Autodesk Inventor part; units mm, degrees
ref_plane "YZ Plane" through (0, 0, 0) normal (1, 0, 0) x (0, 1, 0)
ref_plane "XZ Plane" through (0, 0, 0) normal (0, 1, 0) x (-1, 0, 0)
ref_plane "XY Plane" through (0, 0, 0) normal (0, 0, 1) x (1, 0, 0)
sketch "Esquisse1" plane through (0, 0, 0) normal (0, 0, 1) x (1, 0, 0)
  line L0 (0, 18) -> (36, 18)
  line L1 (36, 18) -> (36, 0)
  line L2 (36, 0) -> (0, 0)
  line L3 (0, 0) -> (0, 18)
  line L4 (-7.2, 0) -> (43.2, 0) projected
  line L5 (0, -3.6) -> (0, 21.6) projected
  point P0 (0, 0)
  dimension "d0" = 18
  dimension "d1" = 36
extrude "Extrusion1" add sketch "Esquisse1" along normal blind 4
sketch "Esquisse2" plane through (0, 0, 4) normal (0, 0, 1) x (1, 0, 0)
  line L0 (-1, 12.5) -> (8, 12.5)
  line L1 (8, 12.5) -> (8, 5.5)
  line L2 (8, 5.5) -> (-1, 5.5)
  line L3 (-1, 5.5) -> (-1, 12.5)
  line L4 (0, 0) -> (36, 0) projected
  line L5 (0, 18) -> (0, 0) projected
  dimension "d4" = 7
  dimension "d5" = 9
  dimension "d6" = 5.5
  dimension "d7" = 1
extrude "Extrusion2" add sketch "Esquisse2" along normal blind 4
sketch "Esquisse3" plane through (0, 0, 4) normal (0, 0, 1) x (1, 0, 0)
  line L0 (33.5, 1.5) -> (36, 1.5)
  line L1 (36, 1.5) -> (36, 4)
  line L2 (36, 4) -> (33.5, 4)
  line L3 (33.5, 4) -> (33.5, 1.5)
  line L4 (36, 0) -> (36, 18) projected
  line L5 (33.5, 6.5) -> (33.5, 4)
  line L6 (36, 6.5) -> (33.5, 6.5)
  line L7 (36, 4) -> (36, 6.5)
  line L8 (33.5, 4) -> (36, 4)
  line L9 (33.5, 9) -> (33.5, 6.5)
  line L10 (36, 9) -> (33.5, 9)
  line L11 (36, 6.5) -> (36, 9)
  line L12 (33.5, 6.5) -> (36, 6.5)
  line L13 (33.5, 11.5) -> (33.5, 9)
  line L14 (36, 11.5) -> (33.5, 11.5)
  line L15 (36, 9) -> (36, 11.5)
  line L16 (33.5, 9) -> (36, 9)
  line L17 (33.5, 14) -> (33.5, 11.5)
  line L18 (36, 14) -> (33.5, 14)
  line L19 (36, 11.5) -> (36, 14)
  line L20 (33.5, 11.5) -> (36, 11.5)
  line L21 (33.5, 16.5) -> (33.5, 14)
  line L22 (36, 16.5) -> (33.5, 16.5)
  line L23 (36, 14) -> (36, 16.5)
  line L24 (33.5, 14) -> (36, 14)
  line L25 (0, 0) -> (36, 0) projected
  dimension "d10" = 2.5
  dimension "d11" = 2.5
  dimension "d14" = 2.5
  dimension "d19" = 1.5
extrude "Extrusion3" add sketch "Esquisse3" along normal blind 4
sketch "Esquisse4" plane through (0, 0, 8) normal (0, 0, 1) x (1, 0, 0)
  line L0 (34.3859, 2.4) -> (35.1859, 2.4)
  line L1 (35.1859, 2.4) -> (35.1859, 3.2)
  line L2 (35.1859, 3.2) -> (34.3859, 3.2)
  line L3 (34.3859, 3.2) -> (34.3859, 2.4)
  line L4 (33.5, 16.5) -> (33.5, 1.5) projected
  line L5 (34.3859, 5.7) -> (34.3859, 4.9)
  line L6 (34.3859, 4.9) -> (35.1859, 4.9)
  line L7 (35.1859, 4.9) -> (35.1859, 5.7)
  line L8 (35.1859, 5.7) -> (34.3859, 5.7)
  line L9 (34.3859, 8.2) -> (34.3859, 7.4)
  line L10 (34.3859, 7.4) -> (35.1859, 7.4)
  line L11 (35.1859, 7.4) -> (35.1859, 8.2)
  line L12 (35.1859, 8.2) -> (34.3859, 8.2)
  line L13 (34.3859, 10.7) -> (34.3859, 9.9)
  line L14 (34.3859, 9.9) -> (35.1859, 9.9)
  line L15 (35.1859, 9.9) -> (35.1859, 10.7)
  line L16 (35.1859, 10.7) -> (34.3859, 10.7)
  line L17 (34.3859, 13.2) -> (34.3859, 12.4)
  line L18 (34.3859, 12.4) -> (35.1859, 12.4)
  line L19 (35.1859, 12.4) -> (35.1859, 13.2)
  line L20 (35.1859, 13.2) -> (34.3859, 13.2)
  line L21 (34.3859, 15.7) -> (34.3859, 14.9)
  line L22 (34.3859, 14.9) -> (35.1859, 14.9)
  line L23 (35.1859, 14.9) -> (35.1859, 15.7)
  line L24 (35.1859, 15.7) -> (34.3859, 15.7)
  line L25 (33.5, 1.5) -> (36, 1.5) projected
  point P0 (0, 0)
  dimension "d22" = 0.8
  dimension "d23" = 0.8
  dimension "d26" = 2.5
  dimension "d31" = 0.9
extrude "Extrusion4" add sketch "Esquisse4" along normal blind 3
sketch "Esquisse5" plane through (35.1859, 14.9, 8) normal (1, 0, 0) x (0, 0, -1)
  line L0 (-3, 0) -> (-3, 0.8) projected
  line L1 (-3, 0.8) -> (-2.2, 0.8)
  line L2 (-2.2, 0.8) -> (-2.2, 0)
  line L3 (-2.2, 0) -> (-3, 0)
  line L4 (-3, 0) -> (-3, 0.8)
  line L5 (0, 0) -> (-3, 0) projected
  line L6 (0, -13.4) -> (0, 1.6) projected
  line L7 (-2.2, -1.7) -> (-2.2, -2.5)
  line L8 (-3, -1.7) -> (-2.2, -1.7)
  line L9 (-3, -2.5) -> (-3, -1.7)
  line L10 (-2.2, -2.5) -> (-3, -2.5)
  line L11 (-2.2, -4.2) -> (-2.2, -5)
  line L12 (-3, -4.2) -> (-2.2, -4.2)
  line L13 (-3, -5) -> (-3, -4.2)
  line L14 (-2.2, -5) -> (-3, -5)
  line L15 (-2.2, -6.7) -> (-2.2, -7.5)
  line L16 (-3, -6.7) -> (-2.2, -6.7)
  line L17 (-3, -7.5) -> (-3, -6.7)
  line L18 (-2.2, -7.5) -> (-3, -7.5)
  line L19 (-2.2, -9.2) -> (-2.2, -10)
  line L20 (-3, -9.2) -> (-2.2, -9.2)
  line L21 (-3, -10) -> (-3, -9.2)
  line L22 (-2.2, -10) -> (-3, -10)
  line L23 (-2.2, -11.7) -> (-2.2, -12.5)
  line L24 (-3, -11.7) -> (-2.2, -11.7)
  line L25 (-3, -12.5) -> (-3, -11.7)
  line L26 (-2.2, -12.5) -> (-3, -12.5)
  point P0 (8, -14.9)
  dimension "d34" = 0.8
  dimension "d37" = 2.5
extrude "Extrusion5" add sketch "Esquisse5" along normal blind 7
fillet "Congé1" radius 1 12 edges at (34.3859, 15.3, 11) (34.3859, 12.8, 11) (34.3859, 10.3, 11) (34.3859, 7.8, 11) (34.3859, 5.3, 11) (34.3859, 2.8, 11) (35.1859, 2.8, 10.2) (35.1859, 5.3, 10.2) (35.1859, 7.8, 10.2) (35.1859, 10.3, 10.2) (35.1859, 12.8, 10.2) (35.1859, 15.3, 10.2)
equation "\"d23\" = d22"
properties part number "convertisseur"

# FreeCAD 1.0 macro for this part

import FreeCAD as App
import Part
import Sketcher

V = App.Vector
Q = App.Units.Quantity


def edges_at(feature, points):
    """Names of the edges that pass closest to the given points."""
    edges = feature.Shape.Edges
    near = lambda p: min(range(len(edges)), key=lambda i: edges[i].distToShape(Part.Vertex(*p))[0])
    return sorted({f"Edge{near(p) + 1}" for p in points})


def add_polygon(sketch, points):
    """Adds a closed chain of lines whose ends are joined by coincident constraints."""
    first, n = sketch.GeometryCount, len(points)
    for a, b in zip(points, points[1:] + points[:1]):
        sketch.addGeometry(Part.LineSegment(App.Vector(*a, 0), App.Vector(*b, 0)), False)
    for i in range(n):
        sketch.addConstraint(Sketcher.Constraint("Coincident", first + i, 2, first + (i + 1) % n, 1))

doc = App.newDocument("Part")
params = doc.addObject("Spreadsheet::Sheet", "Params")
for row, (alias, value) in enumerate([
    ("sketch1_width", "36 mm"),
    ("sketch1_height", "18 mm"),
    ("pad1_length", "4 mm"),
    ("sketch2_width", "9 mm"),
    ("sketch2_height", "7 mm"),
    ("pad2_length", "4 mm"),
    ("sketch3_width", "2.5 mm"),
    ("sketch3_height", "15 mm"),
    ("pad3_length", "4 mm"),
    ("sketch4_width", "0.8 mm"),
    ("pad4_length", "3 mm"),
    ("sketch5_width", "0.8 mm"),
    ("pad5_length", "7 mm"),
    ("fillet_radius", "1 mm"),
], start=1):
    params.set(f"A{row}", alias)
    params.set(f"B{row}", "=" + value)
    params.setAlias(f"B{row}", alias)

body = doc.addObject("PartDesign::Body", "Body")

# Sketch on XY plane
sketch1 = doc.addObject("Sketcher::SketchObject", "Sketch")
body.addObject(sketch1)
sketch1.AttachmentSupport = (doc.XY_Plane, [""])
sketch1.MapMode = "FlatFace"
add_polygon(sketch1, [(36, 18), (0, 18), (0, 0), (36, 0)])  # lines 0-3
sketch1.addConstraint([
    Sketcher.Constraint("Horizontal", 0),
    Sketcher.Constraint("Vertical", 1),
    Sketcher.Constraint("Horizontal", 2),
    Sketcher.Constraint("Vertical", 3),
    Sketcher.Constraint("Coincident", 1, 2, -1, 1),
    Sketcher.Constraint("DistanceX", 0, 2, 0, 1, Q("36 mm")),
    Sketcher.Constraint("DistanceY", 1, 2, 1, 1, Q("18 mm")),
])
sketch1.setExpression("Constraints[9]", "Params.sketch1_width")
sketch1.setExpression("Constraints[10]", "Params.sketch1_height")
pad1 = doc.addObject("PartDesign::Pad", "Pad")
body.addObject(pad1)
pad1.Profile = sketch1
pad1.setExpression("Length", "Params.pad1_length")

# Sketch on XY plane
sketch2 = doc.addObject("Sketcher::SketchObject", "Sketch001")
body.addObject(sketch2)
sketch2.AttachmentSupport = (doc.XY_Plane, [""])
sketch2.MapMode = "FlatFace"
sketch2.AttachmentOffset = App.Placement(V(0, 0, 4), App.Rotation())
add_polygon(sketch2, [(-1, 12.5), (-1, 5.5), (8, 5.5), (8, 12.5)])  # lines 0-3
sketch2.addConstraint([
    Sketcher.Constraint("Vertical", 0),
    Sketcher.Constraint("Horizontal", 1),
    Sketcher.Constraint("Vertical", 2),
    Sketcher.Constraint("Horizontal", 3),
    Sketcher.Constraint("DistanceX", 1, 1, 1, 2, Q("9 mm")),
    Sketcher.Constraint("DistanceY", 0, 2, 0, 1, Q("7 mm")),
    Sketcher.Constraint("DistanceX", 0, 2, -1, 1, Q("1 mm")),
    Sketcher.Constraint("DistanceY", -1, 1, 0, 2, Q("5.5 mm")),
])
sketch2.setExpression("Constraints[8]", "Params.sketch2_width")
sketch2.setExpression("Constraints[9]", "Params.sketch2_height")
pad2 = doc.addObject("PartDesign::Pad", "Pad001")
body.addObject(pad2)
pad2.Profile = sketch2
pad2.setExpression("Length", "Params.pad2_length")

# Sketch on XY plane
sketch3 = doc.addObject("Sketcher::SketchObject", "Sketch002")
body.addObject(sketch3)
sketch3.AttachmentSupport = (doc.XY_Plane, [""])
sketch3.MapMode = "FlatFace"
sketch3.AttachmentOffset = App.Placement(V(0, 0, 4), App.Rotation())
add_polygon(sketch3, [(33.5, 1.5), (36, 1.5), (36, 16.5), (33.5, 16.5)])  # lines 0-3
sketch3.addConstraint([
    Sketcher.Constraint("Horizontal", 0),
    Sketcher.Constraint("Vertical", 1),
    Sketcher.Constraint("Horizontal", 2),
    Sketcher.Constraint("Vertical", 3),
    Sketcher.Constraint("DistanceX", 0, 1, 0, 2, Q("2.5 mm")),
    Sketcher.Constraint("DistanceY", -1, 1, 0, 2, Q("1.5 mm")),
    Sketcher.Constraint("DistanceY", 1, 1, 1, 2, Q("15 mm")),
    Sketcher.Constraint("DistanceX", -1, 1, 0, 2, Q("36 mm")),
])
sketch3.setExpression("Constraints[8]", "Params.sketch3_width")
sketch3.setExpression("Constraints[10]", "Params.sketch3_height")
pad3 = doc.addObject("PartDesign::Pad", "Pad002")
body.addObject(pad3)
pad3.Profile = sketch3
pad3.setExpression("Length", "Params.pad3_length")

# Sketch on XY plane
sketch4 = doc.addObject("Sketcher::SketchObject", "Sketch003")
body.addObject(sketch4)
sketch4.AttachmentSupport = (doc.XY_Plane, [""])
sketch4.MapMode = "FlatFace"
sketch4.AttachmentOffset = App.Placement(V(0, 0, 8), App.Rotation())
add_polygon(sketch4, [(34.3859, 3.2), (34.3859, 2.4), (35.1859, 2.4), (35.1859, 3.2)])  # lines 0-3
add_polygon(sketch4, [(35.1859, 5.7), (34.3859, 5.7), (34.3859, 4.9), (35.1859, 4.9)])  # lines 4-7
add_polygon(sketch4, [(35.1859, 8.2), (34.3859, 8.2), (34.3859, 7.4), (35.1859, 7.4)])  # lines 8-11
add_polygon(sketch4, [(35.1859, 10.7), (34.3859, 10.7), (34.3859, 9.9), (35.1859, 9.9)])  # lines 12-15
add_polygon(sketch4, [(35.1859, 13.2), (34.3859, 13.2), (34.3859, 12.4), (35.1859, 12.4)])  # lines 16-19
add_polygon(sketch4, [(35.1859, 15.7), (34.3859, 15.7), (34.3859, 14.9), (35.1859, 14.9)])  # lines 20-23
sketch4.addConstraint([
    Sketcher.Constraint("Vertical", 0),
    Sketcher.Constraint("Horizontal", 1),
    Sketcher.Constraint("Vertical", 2),
    Sketcher.Constraint("Horizontal", 3),
    Sketcher.Constraint("Horizontal", 4),
    Sketcher.Constraint("Vertical", 5),
    Sketcher.Constraint("Horizontal", 6),
    Sketcher.Constraint("Vertical", 7),
    Sketcher.Constraint("Horizontal", 8),
    Sketcher.Constraint("Vertical", 9),
    Sketcher.Constraint("Horizontal", 10),
    Sketcher.Constraint("Vertical", 11),
    Sketcher.Constraint("Horizontal", 12),
    Sketcher.Constraint("Vertical", 13),
    Sketcher.Constraint("Horizontal", 14),
    Sketcher.Constraint("Vertical", 15),
    Sketcher.Constraint("Horizontal", 16),
    Sketcher.Constraint("Vertical", 17),
    Sketcher.Constraint("Horizontal", 18),
    Sketcher.Constraint("Vertical", 19),
    Sketcher.Constraint("Horizontal", 20),
    Sketcher.Constraint("Vertical", 21),
    Sketcher.Constraint("Horizontal", 22),
    Sketcher.Constraint("Vertical", 23),
    Sketcher.Constraint("Vertical", 3, 2, 4, 2),
    Sketcher.Constraint("Vertical", 2, 2, 6, 2),
    Sketcher.Constraint("Vertical", 5, 2, 8, 2),
    Sketcher.Constraint("Vertical", 7, 2, 10, 2),
    Sketcher.Constraint("Vertical", 9, 2, 12, 2),
    Sketcher.Constraint("Vertical", 11, 2, 14, 2),
    Sketcher.Constraint("Vertical", 13, 2, 16, 2),
    Sketcher.Constraint("Vertical", 15, 2, 18, 2),
    Sketcher.Constraint("Vertical", 17, 2, 20, 2),
    Sketcher.Constraint("Vertical", 19, 2, 22, 2),
    Sketcher.Constraint("Equal", 22, 0),
    Sketcher.Constraint("Equal", 2, 5),
    Sketcher.Constraint("Equal", 7, 9),
    Sketcher.Constraint("Equal", 11, 13),
    Sketcher.Constraint("Equal", 15, 17),
    Sketcher.Constraint("Equal", 19, 21),
    Sketcher.Constraint("DistanceX", 1, 1, 1, 2, Q("0.8 mm")),
    Sketcher.Constraint("DistanceY", 3, 2, 4, 2, Q("2.5 mm")),
    Sketcher.Constraint("DistanceY", 4, 2, 8, 2, Q("2.5 mm")),
    Sketcher.Constraint("DistanceY", 8, 2, 12, 2, Q("2.5 mm")),
    Sketcher.Constraint("DistanceY", 12, 2, 16, 2, Q("2.5 mm")),
    Sketcher.Constraint("DistanceY", 16, 2, 20, 2, Q("2.5 mm")),
    Sketcher.Constraint("DistanceY", -1, 1, 0, 2, Q("2.4 mm")),
    Sketcher.Constraint("DistanceX", -1, 1, 0, 2, Q("34.386 mm")),
])
sketch4.setExpression("Constraints[64]", "Params.sketch4_width")
pad4 = doc.addObject("PartDesign::Pad", "Pad003")
body.addObject(pad4)
pad4.Profile = sketch4
pad4.setExpression("Length", "Params.pad4_length")

# Sketch on YZ plane
sketch5 = doc.addObject("Sketcher::SketchObject", "Sketch004")
body.addObject(sketch5)
sketch5.AttachmentSupport = (doc.YZ_Plane, [""])
sketch5.MapMode = "FlatFace"
sketch5.AttachmentOffset = App.Placement(V(0, 0, 35.1859), App.Rotation())
add_polygon(sketch5, [(15.7, 11), (14.9, 11), (14.9, 10.2), (15.7, 10.2)])  # lines 0-3
add_polygon(sketch5, [(12.4, 10.2), (13.2, 10.2), (13.2, 11), (12.4, 11)])  # lines 4-7
add_polygon(sketch5, [(9.9, 10.2), (10.7, 10.2), (10.7, 11), (9.9, 11)])  # lines 8-11
add_polygon(sketch5, [(7.4, 10.2), (8.2, 10.2), (8.2, 11), (7.4, 11)])  # lines 12-15
add_polygon(sketch5, [(4.9, 10.2), (5.7, 10.2), (5.7, 11), (4.9, 11)])  # lines 16-19
add_polygon(sketch5, [(2.4, 10.2), (3.2, 10.2), (3.2, 11), (2.4, 11)])  # lines 20-23
sketch5.addConstraint([
    Sketcher.Constraint("Horizontal", 0),
    Sketcher.Constraint("Vertical", 1),
    Sketcher.Constraint("Horizontal", 2),
    Sketcher.Constraint("Vertical", 3),
    Sketcher.Constraint("Horizontal", 4),
    Sketcher.Constraint("Vertical", 5),
    Sketcher.Constraint("Horizontal", 6),
    Sketcher.Constraint("Vertical", 7),
    Sketcher.Constraint("Horizontal", 8),
    Sketcher.Constraint("Vertical", 9),
    Sketcher.Constraint("Horizontal", 10),
    Sketcher.Constraint("Vertical", 11),
    Sketcher.Constraint("Horizontal", 12),
    Sketcher.Constraint("Vertical", 13),
    Sketcher.Constraint("Horizontal", 14),
    Sketcher.Constraint("Vertical", 15),
    Sketcher.Constraint("Horizontal", 16),
    Sketcher.Constraint("Vertical", 17),
    Sketcher.Constraint("Horizontal", 18),
    Sketcher.Constraint("Vertical", 19),
    Sketcher.Constraint("Horizontal", 20),
    Sketcher.Constraint("Vertical", 21),
    Sketcher.Constraint("Horizontal", 22),
    Sketcher.Constraint("Vertical", 23),
    Sketcher.Constraint("Horizontal", 2, 2, 4, 2),
    Sketcher.Constraint("Horizontal", 3, 2, 5, 2),
    Sketcher.Constraint("Horizontal", 7, 2, 8, 2),
    Sketcher.Constraint("Horizontal", 6, 2, 9, 2),
    Sketcher.Constraint("Horizontal", 11, 2, 12, 2),
    Sketcher.Constraint("Horizontal", 10, 2, 13, 2),
    Sketcher.Constraint("Horizontal", 15, 2, 16, 2),
    Sketcher.Constraint("Horizontal", 14, 2, 17, 2),
    Sketcher.Constraint("Horizontal", 19, 2, 20, 2),
    Sketcher.Constraint("Horizontal", 18, 2, 21, 2),
    Sketcher.Constraint("Equal", 2, 4),
    Sketcher.Constraint("Equal", 6, 8),
    Sketcher.Constraint("Equal", 10, 12),
    Sketcher.Constraint("Equal", 14, 16),
    Sketcher.Constraint("Equal", 18, 20),
    Sketcher.Constraint("Equal", 22, 1),
    Sketcher.Constraint("DistanceX", 0, 2, 0, 1, Q("0.8 mm")),
    Sketcher.Constraint("DistanceX", 4, 2, 2, 2, Q("2.5 mm")),
    Sketcher.Constraint("DistanceX", 8, 2, 4, 2, Q("2.5 mm")),
    Sketcher.Constraint("DistanceX", 12, 2, 8, 2, Q("2.5 mm")),
    Sketcher.Constraint("DistanceX", 16, 2, 12, 2, Q("2.5 mm")),
    Sketcher.Constraint("DistanceX", 20, 2, 16, 2, Q("2.5 mm")),
    Sketcher.Constraint("DistanceY", -1, 1, 0, 2, Q("11 mm")),
    Sketcher.Constraint("DistanceX", -1, 1, 0, 2, Q("14.9 mm")),
])
sketch5.setExpression("Constraints[64]", "Params.sketch5_width")
pad5 = doc.addObject("PartDesign::Pad", "Pad004")
body.addObject(pad5)
pad5.Profile = sketch5
pad5.setExpression("Length", "Params.pad5_length")
doc.recompute()

fillet = doc.addObject("PartDesign::Fillet", "Fillet")
body.addObject(fillet)
fillet.Base = (pad5, edges_at(pad5, [
    (34.386, 15.3, 11),
    (34.386, 12.8, 11),
    (34.386, 10.3, 11),
    (34.386, 7.8, 11),
    (34.386, 5.3, 11),
    (34.386, 2.8, 11),
    (35.186, 2.8, 10.2),
    (35.186, 5.3, 10.2),
    (35.186, 7.8, 10.2),
    (35.186, 10.3, 10.2),
    (35.186, 12.8, 10.2),
    (35.186, 15.3, 10.2),
]))
fillet.setExpression("Radius", "Params.fillet_radius")

doc.recompute()
